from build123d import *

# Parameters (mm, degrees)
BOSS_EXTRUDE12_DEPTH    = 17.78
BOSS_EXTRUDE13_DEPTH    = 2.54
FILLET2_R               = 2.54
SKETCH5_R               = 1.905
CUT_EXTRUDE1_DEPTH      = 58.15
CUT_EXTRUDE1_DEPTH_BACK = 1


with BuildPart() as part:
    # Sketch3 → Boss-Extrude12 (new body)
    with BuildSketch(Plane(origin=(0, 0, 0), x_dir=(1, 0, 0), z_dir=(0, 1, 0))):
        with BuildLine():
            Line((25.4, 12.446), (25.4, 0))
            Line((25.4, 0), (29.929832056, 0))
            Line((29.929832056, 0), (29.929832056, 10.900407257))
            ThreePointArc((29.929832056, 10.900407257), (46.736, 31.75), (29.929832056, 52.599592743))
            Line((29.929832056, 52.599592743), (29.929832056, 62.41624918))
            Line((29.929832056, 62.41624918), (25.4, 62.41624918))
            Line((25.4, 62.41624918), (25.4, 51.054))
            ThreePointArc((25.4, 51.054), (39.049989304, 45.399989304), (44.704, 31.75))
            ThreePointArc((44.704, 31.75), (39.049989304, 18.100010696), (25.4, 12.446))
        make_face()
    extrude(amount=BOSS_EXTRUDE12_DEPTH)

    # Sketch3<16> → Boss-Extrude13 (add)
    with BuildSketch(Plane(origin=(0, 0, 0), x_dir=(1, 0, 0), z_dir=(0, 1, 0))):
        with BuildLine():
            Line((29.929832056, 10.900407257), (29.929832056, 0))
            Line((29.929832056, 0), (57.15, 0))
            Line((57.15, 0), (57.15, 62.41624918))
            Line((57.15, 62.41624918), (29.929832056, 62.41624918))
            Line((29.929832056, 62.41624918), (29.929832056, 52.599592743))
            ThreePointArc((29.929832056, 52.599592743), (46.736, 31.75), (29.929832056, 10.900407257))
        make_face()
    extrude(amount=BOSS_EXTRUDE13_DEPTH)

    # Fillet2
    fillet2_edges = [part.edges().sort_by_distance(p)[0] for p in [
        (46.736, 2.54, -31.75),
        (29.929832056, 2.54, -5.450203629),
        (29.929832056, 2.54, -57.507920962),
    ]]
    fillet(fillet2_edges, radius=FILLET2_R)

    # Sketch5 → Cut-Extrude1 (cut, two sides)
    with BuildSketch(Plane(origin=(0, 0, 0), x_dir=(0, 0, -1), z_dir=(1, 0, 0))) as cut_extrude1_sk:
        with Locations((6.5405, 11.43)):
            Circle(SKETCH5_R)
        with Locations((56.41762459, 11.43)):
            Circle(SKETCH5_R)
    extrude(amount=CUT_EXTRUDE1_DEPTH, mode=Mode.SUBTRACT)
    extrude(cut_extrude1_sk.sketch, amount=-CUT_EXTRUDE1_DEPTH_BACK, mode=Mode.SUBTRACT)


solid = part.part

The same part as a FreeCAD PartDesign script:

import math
import FreeCAD as App
import Part
import Sketcher
from FreeCAD import Vector
Q = App.Units.Quantity


def edges_at(feature, points):
    """Names of the edges that pass closest to the given points."""
    edges = feature.Shape.Edges
    near = lambda p: min(range(len(edges)), key=lambda i: edges[i].distToShape(Part.Vertex(*p))[0])
    return sorted({f"Edge{near(p) + 1}" for p in points})

doc = App.newDocument("Part")
body = doc.addObject("PartDesign::Body", "Body")

sketch1 = body.newObject("Sketcher::SketchObject", "Sketch")
sketch1.AttachmentSupport = (doc.getObject("XZ_Plane"), [""])
sketch1.MapMode = "FlatFace"
sketch1.addGeometry([
    Part.LineSegment(Vector(25.4, -12.4, 0), Vector(25.4, 0, 0)),
    Part.LineSegment(Vector(25.4, 0, 0), Vector(29.9, 0, 0)),
    Part.LineSegment(Vector(29.9, 0, 0), Vector(29.9, -10.9, 0)),
    Part.ArcOfCircle(Part.Circle(Vector(25.4, -31.8, 0), Vector(0, 0, 1), 21.3), math.radians(-78), math.radians(78)),
    Part.LineSegment(Vector(29.9, -52.6, 0), Vector(29.9, -62.4, 0)),
    Part.LineSegment(Vector(29.9, -62.4, 0), Vector(25.4, -62.4, 0)),
    Part.LineSegment(Vector(25.4, -62.4, 0), Vector(25.4, -51.1, 0)),
    Part.ArcOfCircle(Part.Circle(Vector(25.4, -31.8, 0), Vector(0, 0, 1), 19.3), math.radians(-90), math.radians(0)),
    Part.ArcOfCircle(Part.Circle(Vector(25.4, -31.8, 0), Vector(0, 0, 1), 19.3), math.radians(0), math.radians(90)),
], False)
sketch1.addConstraint([
    Sketcher.Constraint("Coincident", 0, 2, 1, 1),
    Sketcher.Constraint("Coincident", 1, 2, 2, 1),
    Sketcher.Constraint("Coincident", 2, 2, 3, 2),
    Sketcher.Constraint("Coincident", 3, 1, 4, 1),
    Sketcher.Constraint("Coincident", 4, 2, 5, 1),
    Sketcher.Constraint("Coincident", 5, 2, 6, 1),
    Sketcher.Constraint("Coincident", 6, 2, 7, 1),
    Sketcher.Constraint("Tangent", 7, 2, 8, 1),
    Sketcher.Constraint("Coincident", 8, 2, 0, 1),
    Sketcher.Constraint("Vertical", 0),
    Sketcher.Constraint("Horizontal", 1),
    Sketcher.Constraint("Vertical", 2),
    Sketcher.Constraint("Vertical", 4),
    Sketcher.Constraint("Horizontal", 5),
    Sketcher.Constraint("Vertical", 6),
    Sketcher.Constraint("Coincident", 7, 3, 3, 3),
    Sketcher.Constraint("Equal", 7, 8),
    Sketcher.Constraint("PointOnObject", 0, 2, -1),
    Sketcher.Constraint("Horizontal", 8, 3, 7, 2),
    Sketcher.Constraint("Vertical", 8, 3, 0, 2),
    Sketcher.Constraint("Vertical", 2, 2, 3, 1),
    Sketcher.Constraint("Vertical", 0, 2, 5, 2),
    Sketcher.Constraint("Radius", 3, Q("0.84 in")),
    Sketcher.Constraint("Radius", 7, Q("0.76 in")),
    Sketcher.Constraint("DistanceX", -1, 1, 3, 3, Q("1 in")),
    Sketcher.Constraint("DistanceY", 0, 1, 0, 2, Q("0.49 in")),
    Sketcher.Constraint("DistanceY", 6, 1, 6, 2, Q("11.362249 mm")),
    Sketcher.Constraint("DistanceX", 1, 1, 1, 2, Q("4.529832 mm")),
])
pad1 = body.newObject("PartDesign::Pad", "Pad")
pad1.Profile = sketch1
pad1.Length = Q("0.7 in")
pad1.Reversed = True

sketch2 = body.newObject("Sketcher::SketchObject", "Sketch001")
sketch2.AttachmentSupport = (doc.getObject("XZ_Plane"), [""])
sketch2.MapMode = "FlatFace"
sketch2.addGeometry([
    Part.LineSegment(Vector(30, -11, 0), Vector(30, 0, 0)),
    Part.LineSegment(Vector(30, 0, 0), Vector(57, 0, 0)),
    Part.LineSegment(Vector(57, 0, 0), Vector(57, -62, 0)),
    Part.LineSegment(Vector(57, -62, 0), Vector(30, -62, 0)),
    Part.LineSegment(Vector(30, -62, 0), Vector(30, -53, 0)),
    Part.ArcOfCircle(Part.Circle(Vector(25, -32, 0), Vector(0, 0, 1), 21), math.radians(-78), math.radians(78)),
], False)
sketch2.addConstraint([
    Sketcher.Constraint("Coincident", 0, 2, 1, 1),
    Sketcher.Constraint("Coincident", 1, 2, 2, 1),
    Sketcher.Constraint("Coincident", 2, 2, 3, 1),
    Sketcher.Constraint("Coincident", 3, 2, 4, 1),
    Sketcher.Constraint("Coincident", 4, 2, 5, 1),
    Sketcher.Constraint("Coincident", 5, 2, 0, 1),
    Sketcher.Constraint("Vertical", 0),
    Sketcher.Constraint("Horizontal", 1),
    Sketcher.Constraint("Vertical", 2),
    Sketcher.Constraint("Horizontal", 3),
    Sketcher.Constraint("Vertical", 4),
    Sketcher.Constraint("PointOnObject", 0, 2, -1),
    Sketcher.Constraint("Vertical", 0, 2, 3, 2),
    Sketcher.Constraint("Radius", 5, Q("0.84 in")),
    Sketcher.Constraint("DistanceX", -1, 1, 5, 3, Q("1 in")),
    Sketcher.Constraint("DistanceY", 5, 3, -1, 1, Q("1.25 in")),
    Sketcher.Constraint("DistanceX", -1, 1, 1, 2, Q("2.25 in")),
    Sketcher.Constraint("DistanceY", 2, 2, 2, 1, Q("62.416249 mm")),
    Sketcher.Constraint("DistanceX", 1, 1, 1, 2, Q("27.220168 mm")),
])
pad2 = body.newObject("PartDesign::Pad", "Pad001")
pad2.Profile = sketch2
pad2.Length = Q("0.1 in")
pad2.Reversed = True
doc.recompute()

fillet = body.newObject("PartDesign::Fillet", "Fillet")
fillet.Base = (pad2, edges_at(pad2, [(46.736, 2.54, -31.75), (29.93, 2.54, -5.45), (29.93, 2.54, -57.508)]))
fillet.Radius = Q("0.1 in")

sketch3 = body.newObject("Sketcher::SketchObject", "Sketch002")
sketch3.AttachmentSupport = (doc.getObject("YZ_Plane"), [""])
sketch3.MapMode = "FlatFace"
sketch3.addGeometry([
    Part.Circle(Vector(11.4, -6.5, 0), Vector(0, 0, 1), 1.9),
    Part.Circle(Vector(11.4, -56.4, 0), Vector(0, 0, 1), 1.9),
], False)
sketch3.addConstraint([
    Sketcher.Constraint("Equal", 0, 1),
    Sketcher.Constraint("Vertical", 0, 3, 1, 3),
    Sketcher.Constraint("Diameter", 0, Q("0.15 in")),
    Sketcher.Constraint("DistanceX", -1, 1, 0, 3, Q("0.45 in")),
    Sketcher.Constraint("DistanceY", 0, 3, -1, 1, Q("0.2575 in")),
    Sketcher.Constraint("DistanceY", 1, 3, -1, 1, Q("56.417625 mm")),
])
pocket1 = body.newObject("PartDesign::Pocket", "Pocket")
pocket1.Profile = sketch3
pocket1.Type = "ThroughAll"
pocket1.Midplane = True

doc.recompute()
